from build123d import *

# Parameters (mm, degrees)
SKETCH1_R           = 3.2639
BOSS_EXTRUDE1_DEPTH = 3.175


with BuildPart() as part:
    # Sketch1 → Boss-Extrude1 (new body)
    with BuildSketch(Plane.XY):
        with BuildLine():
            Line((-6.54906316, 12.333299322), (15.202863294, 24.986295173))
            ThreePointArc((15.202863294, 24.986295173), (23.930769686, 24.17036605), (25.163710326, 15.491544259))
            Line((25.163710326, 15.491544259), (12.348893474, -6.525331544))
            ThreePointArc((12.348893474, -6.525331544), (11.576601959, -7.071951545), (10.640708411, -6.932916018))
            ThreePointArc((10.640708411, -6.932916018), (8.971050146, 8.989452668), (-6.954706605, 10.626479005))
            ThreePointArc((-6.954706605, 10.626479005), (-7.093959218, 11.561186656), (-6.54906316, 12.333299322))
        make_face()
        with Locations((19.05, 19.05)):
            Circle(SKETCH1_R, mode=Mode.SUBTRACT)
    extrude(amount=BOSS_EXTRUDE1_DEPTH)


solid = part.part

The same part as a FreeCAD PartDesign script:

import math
import FreeCAD as App
import Part
import Sketcher

V = App.Vector
Q = App.Units.Quantity

doc = App.newDocument("Part")
body = doc.addObject("PartDesign::Body", "Body")

# Sketch on XY plane
sketch1 = doc.addObject("Sketcher::SketchObject", "Sketch")
body.addObject(sketch1)
sketch1.AttachmentSupport = (doc.XY_Plane, [""])
sketch1.MapMode = "FlatFace"
sketch1.addGeometry([
    Part.LineSegment(V(15.2, 25, 0), V(-6.5, 12.3, 0)),  # 0
    Part.ArcOfCircle(Part.Circle(V(-5.9, 11.3, 0), V(0, 0, 1), 1.3), math.radians(123), math.radians(210)),  # 1
    Part.ArcOfCircle(Part.Circle(V(0, 0, 0), V(0, 0, 1), 12.7), math.radians(-33), math.radians(123)),  # 2
    Part.ArcOfCircle(Part.Circle(V(11.3, -5.8, 0), V(0, 0, 1), 1.3), math.radians(-120), math.radians(-33)),  # 3
    Part.LineSegment(V(12.3, -6.5, 0), V(25.2, 15.5, 0)),  # 4
    Part.ArcOfCircle(Part.Circle(V(19.1, 19.1, 0), V(0, 0, 1), 7.1), math.radians(-30), math.radians(123)),  # 5
    Part.Circle(V(19.1, 19.1, 0), V(0, 0, 1), 3.3),  # 6
], False)
sketch1.addConstraint([
    Sketcher.Constraint("Coincident", 0, 2, 1, 1),
    Sketcher.Constraint("Coincident", 1, 2, 2, 2),
    Sketcher.Constraint("Coincident", 2, 1, 3, 1),
    Sketcher.Constraint("Coincident", 3, 2, 4, 1),
    Sketcher.Constraint("Tangent", 4, 2, 5, 1),
    Sketcher.Constraint("Coincident", 5, 2, 0, 1),
    Sketcher.Constraint("Coincident", 2, 3, -1, 1),
    Sketcher.Constraint("Coincident", 6, 3, 5, 3),
    Sketcher.Constraint("Equal", 1, 3),
    Sketcher.Constraint("Radius", 2, Q("0.5 in")),
    Sketcher.Constraint("Radius", 1, Q("0.05 in")),
    Sketcher.Constraint("Diameter", 6, Q("0.257 in")),
    Sketcher.Constraint("Radius", 5, Q("0.2785 in")),
    Sketcher.Constraint("DistanceX", -1, 1, 5, 3, Q("0.75 in")),
    Sketcher.Constraint("DistanceY", -1, 1, 5, 3, Q("0.75 in")),
    Sketcher.Constraint("DistanceY", -1, 1, 0, 2, 12.333299),
    Sketcher.Constraint("DistanceY", 3, 2, 3, 3, 0.688701),
    Sketcher.Constraint("DistanceX", 1, 2, 3, 2, 19.3036),
    Sketcher.Constraint("DistanceX", 2, 1, 4, 2, 14.523002),
    Sketcher.Constraint("Distance", 0, 25.164352),
    Sketcher.Constraint("Distance", 4, 25.474739),
    Sketcher.Constraint("DistanceX", 1, 3, 3, 3, 17.14022),
])
pad1 = doc.addObject("PartDesign::Pad", "Pad")
body.addObject(pad1)
pad1.Profile = sketch1
pad1.Length = Q("0.125 in")

doc.recompute()
